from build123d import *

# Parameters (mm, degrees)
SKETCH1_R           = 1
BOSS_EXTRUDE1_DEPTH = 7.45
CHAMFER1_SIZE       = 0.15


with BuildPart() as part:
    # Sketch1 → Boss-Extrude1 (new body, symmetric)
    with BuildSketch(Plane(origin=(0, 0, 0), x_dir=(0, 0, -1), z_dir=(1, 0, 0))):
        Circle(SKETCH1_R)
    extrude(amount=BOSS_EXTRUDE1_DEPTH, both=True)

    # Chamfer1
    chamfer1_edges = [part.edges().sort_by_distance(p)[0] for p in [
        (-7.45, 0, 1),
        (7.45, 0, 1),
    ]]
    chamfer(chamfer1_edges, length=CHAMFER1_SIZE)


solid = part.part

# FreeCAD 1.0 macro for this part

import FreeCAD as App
import Part
import Sketcher
Q = App.Units.Quantity


def edges_at(feature, points):
    """Names of the edges that pass closest to the given points."""
    edges = feature.Shape.Edges
    near = lambda p: min(range(len(edges)), key=lambda i: edges[i].distToShape(Part.Vertex(*p))[0])
    return sorted({f"Edge{near(p) + 1}" for p in points})

doc = App.newDocument("Part")
body = doc.addObject("PartDesign::Body", "Body")

sketch1 = body.newObject("Sketcher::SketchObject", "Sketch")
sketch1.AttachmentSupport = (doc.getObject("YZ_Plane"), [""])
sketch1.MapMode = "FlatFace"
sketch1.addGeometry(Part.Circle(App.Vector(0, 0, 0), App.Vector(0, 0, 1), 1), False)
sketch1.addConstraint(Sketcher.Constraint("Coincident", 0, 3, -1, 1))
sketch1.addConstraint(Sketcher.Constraint("Diameter", 0, Q("2 mm")))
pad1 = body.newObject("PartDesign::Pad", "Pad")
pad1.Profile = sketch1
pad1.Length = 14.9
pad1.Midplane = True
doc.recompute()

chamfer = body.newObject("PartDesign::Chamfer", "Chamfer")
chamfer.Base = (pad1, edges_at(pad1, [(-7.45, 0, 1), (7.45, 0, 1)]))
chamfer.Size = 0.15

doc.recompute()
